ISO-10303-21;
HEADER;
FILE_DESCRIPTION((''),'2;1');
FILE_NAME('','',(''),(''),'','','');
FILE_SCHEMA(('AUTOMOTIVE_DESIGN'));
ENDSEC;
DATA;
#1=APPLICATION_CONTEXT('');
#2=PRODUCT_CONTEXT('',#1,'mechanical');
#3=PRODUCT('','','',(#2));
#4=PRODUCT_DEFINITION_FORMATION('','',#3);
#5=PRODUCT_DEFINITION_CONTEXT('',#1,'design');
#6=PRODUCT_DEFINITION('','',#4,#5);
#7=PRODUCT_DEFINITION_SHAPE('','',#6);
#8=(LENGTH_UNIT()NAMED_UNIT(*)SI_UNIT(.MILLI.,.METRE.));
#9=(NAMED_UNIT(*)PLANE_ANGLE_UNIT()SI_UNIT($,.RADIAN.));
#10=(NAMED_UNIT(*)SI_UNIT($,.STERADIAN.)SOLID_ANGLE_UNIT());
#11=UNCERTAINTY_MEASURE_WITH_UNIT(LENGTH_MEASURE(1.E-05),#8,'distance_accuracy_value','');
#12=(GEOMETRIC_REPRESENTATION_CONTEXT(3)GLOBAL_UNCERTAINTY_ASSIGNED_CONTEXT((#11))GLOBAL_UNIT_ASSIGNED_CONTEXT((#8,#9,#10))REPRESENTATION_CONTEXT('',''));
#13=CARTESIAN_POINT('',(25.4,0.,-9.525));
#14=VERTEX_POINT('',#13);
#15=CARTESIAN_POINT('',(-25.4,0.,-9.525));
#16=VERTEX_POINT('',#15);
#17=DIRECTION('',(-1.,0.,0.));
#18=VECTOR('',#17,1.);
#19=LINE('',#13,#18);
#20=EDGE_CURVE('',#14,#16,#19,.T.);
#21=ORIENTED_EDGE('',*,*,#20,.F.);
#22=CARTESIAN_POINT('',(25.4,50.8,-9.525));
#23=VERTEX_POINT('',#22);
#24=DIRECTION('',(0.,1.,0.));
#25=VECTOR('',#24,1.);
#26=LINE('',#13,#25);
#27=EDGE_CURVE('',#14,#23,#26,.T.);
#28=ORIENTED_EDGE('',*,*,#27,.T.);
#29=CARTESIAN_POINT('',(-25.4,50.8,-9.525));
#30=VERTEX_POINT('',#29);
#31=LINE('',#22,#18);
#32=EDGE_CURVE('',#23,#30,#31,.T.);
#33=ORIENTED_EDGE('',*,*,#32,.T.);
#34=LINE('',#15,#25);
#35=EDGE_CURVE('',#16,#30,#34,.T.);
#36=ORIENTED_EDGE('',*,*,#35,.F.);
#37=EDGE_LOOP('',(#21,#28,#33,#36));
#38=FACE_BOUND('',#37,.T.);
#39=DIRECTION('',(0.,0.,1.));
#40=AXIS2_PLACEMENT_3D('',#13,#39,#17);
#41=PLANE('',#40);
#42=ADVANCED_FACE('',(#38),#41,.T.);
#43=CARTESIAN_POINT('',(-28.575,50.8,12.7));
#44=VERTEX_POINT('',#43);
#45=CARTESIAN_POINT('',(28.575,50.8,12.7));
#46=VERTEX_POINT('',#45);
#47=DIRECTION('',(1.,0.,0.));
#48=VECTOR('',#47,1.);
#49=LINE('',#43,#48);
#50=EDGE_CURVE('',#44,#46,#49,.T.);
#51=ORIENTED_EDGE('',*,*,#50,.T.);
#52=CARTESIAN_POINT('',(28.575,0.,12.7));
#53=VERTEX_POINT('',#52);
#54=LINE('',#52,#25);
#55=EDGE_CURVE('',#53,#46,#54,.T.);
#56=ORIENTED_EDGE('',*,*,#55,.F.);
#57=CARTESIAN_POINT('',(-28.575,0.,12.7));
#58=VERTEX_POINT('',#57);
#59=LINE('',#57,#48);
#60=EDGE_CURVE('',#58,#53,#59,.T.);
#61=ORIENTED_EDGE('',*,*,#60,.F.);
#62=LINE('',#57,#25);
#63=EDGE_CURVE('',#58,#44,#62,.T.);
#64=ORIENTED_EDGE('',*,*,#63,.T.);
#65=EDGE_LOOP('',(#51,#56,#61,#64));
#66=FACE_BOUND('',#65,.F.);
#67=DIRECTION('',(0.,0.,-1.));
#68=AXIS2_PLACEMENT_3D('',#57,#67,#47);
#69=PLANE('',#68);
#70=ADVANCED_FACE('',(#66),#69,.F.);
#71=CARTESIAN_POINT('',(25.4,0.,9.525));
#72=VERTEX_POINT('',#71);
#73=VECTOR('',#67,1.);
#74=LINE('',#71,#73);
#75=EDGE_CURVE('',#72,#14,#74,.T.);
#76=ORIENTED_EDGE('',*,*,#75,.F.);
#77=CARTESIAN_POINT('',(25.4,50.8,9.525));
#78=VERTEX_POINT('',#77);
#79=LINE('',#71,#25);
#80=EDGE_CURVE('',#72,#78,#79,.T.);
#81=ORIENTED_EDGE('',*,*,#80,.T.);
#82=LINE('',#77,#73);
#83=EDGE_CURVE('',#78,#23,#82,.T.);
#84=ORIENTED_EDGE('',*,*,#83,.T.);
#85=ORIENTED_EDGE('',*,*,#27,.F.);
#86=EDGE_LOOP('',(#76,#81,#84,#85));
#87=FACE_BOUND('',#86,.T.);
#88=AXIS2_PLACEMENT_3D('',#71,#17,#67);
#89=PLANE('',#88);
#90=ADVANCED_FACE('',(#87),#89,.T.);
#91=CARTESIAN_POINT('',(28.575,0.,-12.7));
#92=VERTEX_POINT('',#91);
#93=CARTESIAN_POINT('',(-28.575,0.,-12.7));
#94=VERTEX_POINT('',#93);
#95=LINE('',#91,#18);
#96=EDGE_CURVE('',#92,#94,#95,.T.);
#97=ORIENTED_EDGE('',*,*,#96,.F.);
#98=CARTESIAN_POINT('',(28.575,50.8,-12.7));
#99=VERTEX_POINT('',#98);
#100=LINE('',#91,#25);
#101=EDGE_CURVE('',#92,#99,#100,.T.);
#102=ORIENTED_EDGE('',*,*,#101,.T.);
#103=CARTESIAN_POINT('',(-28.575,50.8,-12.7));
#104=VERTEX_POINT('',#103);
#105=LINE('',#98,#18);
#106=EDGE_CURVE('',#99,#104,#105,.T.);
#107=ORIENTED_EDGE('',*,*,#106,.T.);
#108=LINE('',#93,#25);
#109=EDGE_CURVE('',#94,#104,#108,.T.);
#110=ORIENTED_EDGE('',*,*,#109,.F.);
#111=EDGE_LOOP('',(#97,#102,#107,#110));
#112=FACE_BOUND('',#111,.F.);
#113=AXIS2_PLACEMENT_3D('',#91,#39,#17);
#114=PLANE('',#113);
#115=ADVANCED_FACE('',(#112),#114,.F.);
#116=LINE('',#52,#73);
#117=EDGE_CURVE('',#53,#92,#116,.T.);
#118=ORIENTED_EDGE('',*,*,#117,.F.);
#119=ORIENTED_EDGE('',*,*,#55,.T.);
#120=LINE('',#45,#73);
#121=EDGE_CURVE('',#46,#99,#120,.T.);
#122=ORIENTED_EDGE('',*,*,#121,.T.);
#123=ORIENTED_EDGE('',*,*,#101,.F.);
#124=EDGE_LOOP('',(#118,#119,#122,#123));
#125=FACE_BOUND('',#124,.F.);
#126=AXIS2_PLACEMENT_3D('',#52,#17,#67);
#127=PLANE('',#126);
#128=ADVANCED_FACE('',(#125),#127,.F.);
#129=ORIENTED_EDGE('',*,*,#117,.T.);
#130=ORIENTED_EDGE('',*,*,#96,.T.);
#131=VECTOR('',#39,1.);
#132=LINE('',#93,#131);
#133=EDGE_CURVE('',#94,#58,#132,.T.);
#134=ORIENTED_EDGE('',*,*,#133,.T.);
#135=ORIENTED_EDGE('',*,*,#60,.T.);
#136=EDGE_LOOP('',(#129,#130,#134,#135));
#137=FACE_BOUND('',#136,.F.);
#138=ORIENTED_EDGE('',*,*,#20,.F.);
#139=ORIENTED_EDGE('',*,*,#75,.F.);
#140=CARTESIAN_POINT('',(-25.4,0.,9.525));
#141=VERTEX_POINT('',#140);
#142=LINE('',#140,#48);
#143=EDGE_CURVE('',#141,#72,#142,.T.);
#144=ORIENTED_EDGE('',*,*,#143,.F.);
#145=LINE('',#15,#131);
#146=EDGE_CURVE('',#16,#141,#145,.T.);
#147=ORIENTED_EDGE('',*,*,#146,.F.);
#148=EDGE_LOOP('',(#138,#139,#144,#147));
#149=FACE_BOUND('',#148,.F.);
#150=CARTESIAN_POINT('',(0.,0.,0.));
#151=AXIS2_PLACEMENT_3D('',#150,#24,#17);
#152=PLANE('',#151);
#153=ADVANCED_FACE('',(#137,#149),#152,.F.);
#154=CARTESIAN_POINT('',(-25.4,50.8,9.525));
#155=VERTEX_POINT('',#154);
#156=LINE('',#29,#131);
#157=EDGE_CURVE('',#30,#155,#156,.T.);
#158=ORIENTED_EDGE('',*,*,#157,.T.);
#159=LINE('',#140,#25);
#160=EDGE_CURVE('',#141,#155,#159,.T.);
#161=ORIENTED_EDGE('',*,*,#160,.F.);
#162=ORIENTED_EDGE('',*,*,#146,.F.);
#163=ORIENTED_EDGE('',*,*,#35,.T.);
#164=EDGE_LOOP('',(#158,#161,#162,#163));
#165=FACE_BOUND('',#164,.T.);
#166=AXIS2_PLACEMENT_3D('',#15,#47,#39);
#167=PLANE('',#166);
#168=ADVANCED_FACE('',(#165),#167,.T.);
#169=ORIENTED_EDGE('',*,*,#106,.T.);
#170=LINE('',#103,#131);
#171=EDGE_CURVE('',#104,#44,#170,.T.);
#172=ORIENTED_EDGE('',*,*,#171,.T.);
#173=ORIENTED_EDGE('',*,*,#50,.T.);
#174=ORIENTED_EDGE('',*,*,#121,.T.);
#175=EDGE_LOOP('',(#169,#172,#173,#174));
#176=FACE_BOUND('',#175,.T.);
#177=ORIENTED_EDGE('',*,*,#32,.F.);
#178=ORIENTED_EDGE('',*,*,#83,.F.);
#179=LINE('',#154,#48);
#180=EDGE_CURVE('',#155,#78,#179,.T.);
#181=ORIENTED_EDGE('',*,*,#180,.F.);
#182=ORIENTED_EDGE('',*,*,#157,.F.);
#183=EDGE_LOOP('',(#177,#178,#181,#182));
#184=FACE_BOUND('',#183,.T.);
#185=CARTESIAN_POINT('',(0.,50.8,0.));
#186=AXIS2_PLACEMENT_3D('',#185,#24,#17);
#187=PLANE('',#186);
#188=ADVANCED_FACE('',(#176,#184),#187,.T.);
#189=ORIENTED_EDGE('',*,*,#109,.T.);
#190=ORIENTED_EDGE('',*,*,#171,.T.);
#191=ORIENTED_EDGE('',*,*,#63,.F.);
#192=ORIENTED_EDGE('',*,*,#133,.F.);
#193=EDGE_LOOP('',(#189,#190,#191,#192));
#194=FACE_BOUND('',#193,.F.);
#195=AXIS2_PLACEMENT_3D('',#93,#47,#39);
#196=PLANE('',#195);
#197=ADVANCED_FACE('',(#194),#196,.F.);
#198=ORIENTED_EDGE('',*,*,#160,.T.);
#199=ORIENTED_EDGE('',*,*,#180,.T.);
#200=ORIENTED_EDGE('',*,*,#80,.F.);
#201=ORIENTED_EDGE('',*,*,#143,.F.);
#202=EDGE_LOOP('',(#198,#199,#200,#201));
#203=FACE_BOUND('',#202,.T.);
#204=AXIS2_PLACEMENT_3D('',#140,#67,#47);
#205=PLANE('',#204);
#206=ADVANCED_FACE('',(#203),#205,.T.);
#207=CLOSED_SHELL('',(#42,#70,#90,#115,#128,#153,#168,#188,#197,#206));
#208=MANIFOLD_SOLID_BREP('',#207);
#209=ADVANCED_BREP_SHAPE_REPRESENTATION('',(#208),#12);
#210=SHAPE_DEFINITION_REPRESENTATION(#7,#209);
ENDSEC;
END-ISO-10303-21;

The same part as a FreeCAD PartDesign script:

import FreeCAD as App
import Part
import Sketcher
from FreeCAD import Vector
Q = App.Units.Quantity


def add_polygon(sketch, points):
    """Adds a closed chain of lines whose ends are joined by coincident constraints."""
    first, n = sketch.GeometryCount, len(points)
    for a, b in zip(points, points[1:] + points[:1]):
        sketch.addGeometry(Part.LineSegment(App.Vector(*a, 0), App.Vector(*b, 0)), False)
    for i in range(n):
        sketch.addConstraint(Sketcher.Constraint("Coincident", first + i, 2, first + (i + 1) % n, 1))

doc = App.newDocument("Part")
params = doc.addObject("Spreadsheet::Sheet", "Params")
for row, (alias, value) in enumerate([
    ("sketch1_height", "1 in"),
    ("sketch1_width", "2.25 in"),
    ("pad1_length", "2 in"),
], start=1):
    params.set(f"A{row}", alias)
    params.set(f"B{row}", "=" + value)
    params.setAlias(f"B{row}", alias)

body = doc.addObject("PartDesign::Body", "Body")

sketch1 = doc.addObject("Sketcher::SketchObject", "Sketch")
body.addObject(sketch1)
sketch1.AttachmentSupport = (doc.XZ_Plane, [""])
sketch1.MapMode = "FlatFace"
add_polygon(sketch1, [(-29, 13), (29, 13), (29, -13), (-29, -13)])
add_polygon(sketch1, [(25, -10), (25, 10), (-25, 10), (-25, -10)])
sketch1.addConstraint(Sketcher.Constraint("Horizontal", 0))
sketch1.addConstraint(Sketcher.Constraint("Vertical", 1))
sketch1.addConstraint(Sketcher.Constraint("Horizontal", 2))
sketch1.addConstraint(Sketcher.Constraint("Vertical", 3))
sketch1.addConstraint(Sketcher.Constraint("Vertical", 4))
sketch1.addConstraint(Sketcher.Constraint("Horizontal", 5))
sketch1.addConstraint(Sketcher.Constraint("Vertical", 6))
sketch1.addConstraint(Sketcher.Constraint("Horizontal", 7))
sketch1.addConstraint(Sketcher.Constraint("Symmetric", 0, 2, 2, 2, -1, 1))
sketch1.addConstraint(Sketcher.Constraint("Symmetric", 4, 2, 6, 2, -1, 1))
sketch1.addConstraint(Sketcher.Constraint("DistanceY", 1, 2, 1, 1, Q("1 in")))
sketch1.addConstraint(Sketcher.Constraint("DistanceX", -1, 1, 4, 2, Q("1 in")))
sketch1.addConstraint(Sketcher.Constraint("DistanceX", 0, 1, 0, 2, Q("2.25 in")))
sketch1.addConstraint(Sketcher.Constraint("DistanceY", 4, 2, 0, 2, Q("0.125 in")))
sketch1.setExpression("Constraints[18]", "Params.sketch1_height")
sketch1.setExpression("Constraints[20]", "Params.sketch1_width")
pad1 = doc.addObject("PartDesign::Pad", "Pad")
body.addObject(pad1)
pad1.Profile = sketch1
pad1.setExpression("Length", "Params.pad1_length")
pad1.Reversed = True

doc.recompute()
